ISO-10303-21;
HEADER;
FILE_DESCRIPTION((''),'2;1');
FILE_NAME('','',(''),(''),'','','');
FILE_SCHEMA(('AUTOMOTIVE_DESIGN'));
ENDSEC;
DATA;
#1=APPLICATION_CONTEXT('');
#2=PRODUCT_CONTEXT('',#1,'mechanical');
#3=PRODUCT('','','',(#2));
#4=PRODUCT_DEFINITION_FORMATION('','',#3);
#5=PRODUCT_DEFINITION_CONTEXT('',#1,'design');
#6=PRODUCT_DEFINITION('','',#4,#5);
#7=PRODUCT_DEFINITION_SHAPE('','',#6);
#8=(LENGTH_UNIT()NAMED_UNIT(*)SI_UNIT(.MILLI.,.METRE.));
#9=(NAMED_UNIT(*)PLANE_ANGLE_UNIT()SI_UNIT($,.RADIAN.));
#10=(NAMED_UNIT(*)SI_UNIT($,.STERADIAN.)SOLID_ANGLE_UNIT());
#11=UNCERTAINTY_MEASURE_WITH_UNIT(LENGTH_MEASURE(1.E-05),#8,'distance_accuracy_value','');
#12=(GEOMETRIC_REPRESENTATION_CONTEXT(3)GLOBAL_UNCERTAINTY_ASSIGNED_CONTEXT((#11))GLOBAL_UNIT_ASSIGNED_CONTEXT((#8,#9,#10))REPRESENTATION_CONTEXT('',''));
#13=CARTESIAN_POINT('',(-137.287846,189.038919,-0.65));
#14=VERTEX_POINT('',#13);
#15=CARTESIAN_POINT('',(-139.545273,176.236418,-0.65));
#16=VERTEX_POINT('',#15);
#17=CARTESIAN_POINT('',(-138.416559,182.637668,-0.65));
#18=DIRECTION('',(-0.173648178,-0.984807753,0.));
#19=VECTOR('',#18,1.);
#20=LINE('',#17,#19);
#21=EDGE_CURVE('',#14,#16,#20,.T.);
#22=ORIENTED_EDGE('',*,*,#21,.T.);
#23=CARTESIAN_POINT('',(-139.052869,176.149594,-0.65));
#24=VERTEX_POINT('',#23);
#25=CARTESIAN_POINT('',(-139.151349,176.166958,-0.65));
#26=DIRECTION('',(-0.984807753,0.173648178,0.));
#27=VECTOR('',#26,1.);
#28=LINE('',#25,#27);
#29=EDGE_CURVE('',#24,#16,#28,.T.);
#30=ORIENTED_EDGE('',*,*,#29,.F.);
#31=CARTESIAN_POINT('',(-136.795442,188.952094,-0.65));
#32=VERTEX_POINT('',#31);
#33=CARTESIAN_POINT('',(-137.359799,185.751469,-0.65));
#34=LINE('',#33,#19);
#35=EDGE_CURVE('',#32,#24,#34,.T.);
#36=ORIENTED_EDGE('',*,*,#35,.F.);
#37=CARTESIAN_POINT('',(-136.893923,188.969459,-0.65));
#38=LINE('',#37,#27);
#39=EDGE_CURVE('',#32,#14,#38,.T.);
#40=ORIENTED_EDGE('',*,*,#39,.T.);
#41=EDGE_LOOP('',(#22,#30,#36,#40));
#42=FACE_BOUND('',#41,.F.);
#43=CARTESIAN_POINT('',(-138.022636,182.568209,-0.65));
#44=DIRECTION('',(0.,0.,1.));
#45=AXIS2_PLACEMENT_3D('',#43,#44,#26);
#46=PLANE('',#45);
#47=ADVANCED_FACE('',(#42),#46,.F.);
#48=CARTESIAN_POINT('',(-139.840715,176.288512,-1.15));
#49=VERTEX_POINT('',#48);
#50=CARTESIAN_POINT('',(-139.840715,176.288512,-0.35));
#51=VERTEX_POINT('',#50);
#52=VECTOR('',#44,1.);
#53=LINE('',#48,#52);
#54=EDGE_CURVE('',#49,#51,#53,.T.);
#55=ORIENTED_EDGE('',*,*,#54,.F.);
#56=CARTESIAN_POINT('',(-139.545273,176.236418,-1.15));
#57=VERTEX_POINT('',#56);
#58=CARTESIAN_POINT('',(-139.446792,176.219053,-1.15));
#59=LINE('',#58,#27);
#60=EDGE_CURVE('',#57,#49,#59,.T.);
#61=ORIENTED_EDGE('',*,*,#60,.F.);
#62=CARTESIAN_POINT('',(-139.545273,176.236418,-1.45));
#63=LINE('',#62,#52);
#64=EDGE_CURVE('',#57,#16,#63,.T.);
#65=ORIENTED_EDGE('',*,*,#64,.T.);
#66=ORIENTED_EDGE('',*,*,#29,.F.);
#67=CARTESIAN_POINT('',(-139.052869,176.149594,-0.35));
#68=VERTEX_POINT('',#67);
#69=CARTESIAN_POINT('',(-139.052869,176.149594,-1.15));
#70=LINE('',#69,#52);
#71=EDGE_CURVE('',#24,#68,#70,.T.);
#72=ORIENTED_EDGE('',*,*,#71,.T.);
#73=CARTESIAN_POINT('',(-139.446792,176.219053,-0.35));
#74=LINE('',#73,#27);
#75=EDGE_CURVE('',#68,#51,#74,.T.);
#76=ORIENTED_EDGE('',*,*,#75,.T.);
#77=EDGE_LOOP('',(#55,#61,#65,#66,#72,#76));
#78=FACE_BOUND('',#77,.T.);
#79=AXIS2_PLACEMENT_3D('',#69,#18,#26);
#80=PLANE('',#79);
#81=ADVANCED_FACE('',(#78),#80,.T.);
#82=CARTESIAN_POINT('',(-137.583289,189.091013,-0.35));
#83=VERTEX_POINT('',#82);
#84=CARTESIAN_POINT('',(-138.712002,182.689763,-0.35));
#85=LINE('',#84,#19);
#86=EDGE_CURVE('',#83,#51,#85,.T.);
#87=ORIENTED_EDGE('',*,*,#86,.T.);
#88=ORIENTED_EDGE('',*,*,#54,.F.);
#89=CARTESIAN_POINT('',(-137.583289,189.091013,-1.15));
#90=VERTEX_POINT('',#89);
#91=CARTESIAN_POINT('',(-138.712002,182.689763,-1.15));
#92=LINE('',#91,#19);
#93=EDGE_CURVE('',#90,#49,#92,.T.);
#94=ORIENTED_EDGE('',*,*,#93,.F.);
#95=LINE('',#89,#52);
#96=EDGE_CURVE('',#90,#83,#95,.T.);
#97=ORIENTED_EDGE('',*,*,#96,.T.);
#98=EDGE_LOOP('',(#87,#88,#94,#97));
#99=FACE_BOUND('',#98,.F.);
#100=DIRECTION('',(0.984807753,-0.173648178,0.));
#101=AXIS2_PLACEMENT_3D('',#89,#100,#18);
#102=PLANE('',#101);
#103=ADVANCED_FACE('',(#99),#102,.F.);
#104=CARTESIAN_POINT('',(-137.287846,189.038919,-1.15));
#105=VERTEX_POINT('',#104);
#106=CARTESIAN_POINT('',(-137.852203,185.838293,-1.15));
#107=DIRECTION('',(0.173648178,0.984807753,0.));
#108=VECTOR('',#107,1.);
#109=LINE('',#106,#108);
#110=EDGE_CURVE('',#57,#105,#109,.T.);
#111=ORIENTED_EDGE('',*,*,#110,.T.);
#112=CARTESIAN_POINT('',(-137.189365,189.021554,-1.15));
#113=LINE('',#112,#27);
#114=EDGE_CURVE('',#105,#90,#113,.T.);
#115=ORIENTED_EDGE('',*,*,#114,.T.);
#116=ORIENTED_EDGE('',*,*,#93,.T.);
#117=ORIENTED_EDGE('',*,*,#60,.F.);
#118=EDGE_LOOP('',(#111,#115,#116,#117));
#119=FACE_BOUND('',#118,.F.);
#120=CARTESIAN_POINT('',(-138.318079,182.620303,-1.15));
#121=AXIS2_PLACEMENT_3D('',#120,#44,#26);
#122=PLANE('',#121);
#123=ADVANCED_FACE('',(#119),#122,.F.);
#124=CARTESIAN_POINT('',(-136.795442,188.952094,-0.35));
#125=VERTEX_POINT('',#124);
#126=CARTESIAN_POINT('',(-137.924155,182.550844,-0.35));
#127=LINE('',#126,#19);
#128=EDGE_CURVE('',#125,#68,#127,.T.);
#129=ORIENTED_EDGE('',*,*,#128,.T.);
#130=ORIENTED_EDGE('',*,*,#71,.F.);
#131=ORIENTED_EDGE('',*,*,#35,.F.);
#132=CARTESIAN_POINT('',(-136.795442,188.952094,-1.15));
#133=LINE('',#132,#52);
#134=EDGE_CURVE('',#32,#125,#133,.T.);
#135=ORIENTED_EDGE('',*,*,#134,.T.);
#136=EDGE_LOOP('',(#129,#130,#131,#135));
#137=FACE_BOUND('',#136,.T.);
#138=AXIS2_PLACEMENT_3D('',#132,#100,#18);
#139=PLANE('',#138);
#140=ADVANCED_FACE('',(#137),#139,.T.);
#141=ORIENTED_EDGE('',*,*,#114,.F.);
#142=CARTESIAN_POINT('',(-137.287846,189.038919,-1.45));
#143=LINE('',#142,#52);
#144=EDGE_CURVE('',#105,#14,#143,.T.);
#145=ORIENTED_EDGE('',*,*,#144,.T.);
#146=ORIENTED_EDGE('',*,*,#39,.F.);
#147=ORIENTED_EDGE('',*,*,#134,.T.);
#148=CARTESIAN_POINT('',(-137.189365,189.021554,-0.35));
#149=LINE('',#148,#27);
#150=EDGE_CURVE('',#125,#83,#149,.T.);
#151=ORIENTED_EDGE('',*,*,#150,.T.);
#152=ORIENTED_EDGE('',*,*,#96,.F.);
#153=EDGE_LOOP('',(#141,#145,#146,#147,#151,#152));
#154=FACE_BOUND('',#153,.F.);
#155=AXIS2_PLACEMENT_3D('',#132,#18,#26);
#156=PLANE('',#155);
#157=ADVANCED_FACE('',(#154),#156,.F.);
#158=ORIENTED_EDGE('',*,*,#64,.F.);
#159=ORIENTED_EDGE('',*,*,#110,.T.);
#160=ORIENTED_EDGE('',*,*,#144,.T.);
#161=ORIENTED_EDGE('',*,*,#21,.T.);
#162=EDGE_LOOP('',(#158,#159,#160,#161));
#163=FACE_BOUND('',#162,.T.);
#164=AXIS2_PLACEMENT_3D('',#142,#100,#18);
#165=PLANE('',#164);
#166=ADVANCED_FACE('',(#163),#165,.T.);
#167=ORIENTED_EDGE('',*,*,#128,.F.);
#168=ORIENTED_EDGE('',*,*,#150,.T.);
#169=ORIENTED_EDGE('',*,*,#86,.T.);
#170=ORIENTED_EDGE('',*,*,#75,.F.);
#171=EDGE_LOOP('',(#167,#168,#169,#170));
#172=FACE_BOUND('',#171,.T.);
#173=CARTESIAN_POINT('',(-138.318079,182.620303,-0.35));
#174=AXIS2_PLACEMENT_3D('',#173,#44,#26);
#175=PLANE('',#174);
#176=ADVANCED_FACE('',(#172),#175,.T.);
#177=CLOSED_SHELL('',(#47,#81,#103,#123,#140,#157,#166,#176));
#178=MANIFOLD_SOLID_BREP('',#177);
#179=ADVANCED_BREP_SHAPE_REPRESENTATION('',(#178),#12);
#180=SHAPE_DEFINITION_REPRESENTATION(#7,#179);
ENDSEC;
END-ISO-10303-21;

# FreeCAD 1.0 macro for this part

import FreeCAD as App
import Part
import Sketcher

V = App.Vector
Q = App.Units.Quantity

doc = App.newDocument("Part")
params = doc.addObject("Spreadsheet::Sheet", "Params")
for row, (alias, value) in enumerate([
    ("sketch1_height", "13 mm"),
    ("sketch1_width", "0.8 mm"),
    ("pad1_length", "0.8 mm"),
    ("sketch2_height", "13 mm"),
    ("sketch2_width", "0.8 mm"),
    ("pad2_length", "0.8 mm"),
], start=1):
    params.set(f"A{row}", alias)
    params.set(f"B{row}", "=" + value)
    params.setAlias(f"B{row}", alias)

body = doc.addObject("PartDesign::Body", "Body")

# Sketch on XY plane
sketch1 = doc.addObject("Sketcher::SketchObject", "Sketch")
body.addObject(sketch1)
sketch1.AttachmentSupport = (doc.XY_Plane, [""])
sketch1.MapMode = "FlatFace"
sketch1.addGeometry([
    Part.LineSegment(V(0, 13, 0), V(0, 0, 0)),
    Part.LineSegment(V(0, 0, 0), V(0.8, 0, 0)),
    Part.LineSegment(V(0.8, 0, 0), V(0.8, 13, 0)),
    Part.LineSegment(V(0.8, 13, 0), V(0, 13, 0)),
], False)
sketch1.addConstraint([
    Sketcher.Constraint("Coincident", 0, 2, 1, 1),
    Sketcher.Constraint("Coincident", 1, 2, 2, 1),
    Sketcher.Constraint("Coincident", 2, 2, 3, 1),
    Sketcher.Constraint("Coincident", 3, 2, 0, 1),
    Sketcher.Constraint("Vertical", 0),
    Sketcher.Constraint("Horizontal", 1),
    Sketcher.Constraint("Vertical", 2),
    Sketcher.Constraint("Horizontal", 3),
    Sketcher.Constraint("Coincident", 0, 2, -1, 1),
    Sketcher.Constraint("DistanceY", 0, 2, 0, 1, Q("13 mm")),
    Sketcher.Constraint("DistanceX", 1, 1, 1, 2, Q("0.8 mm")),
])
sketch1.setExpression("Constraints[9]", "Params.sketch1_height")
sketch1.setExpression("Constraints[10]", "Params.sketch1_width")
pad1 = doc.addObject("PartDesign::Pad", "Pad")
body.addObject(pad1)
pad1.Profile = sketch1
pad1.setExpression("Length", "Params.pad1_length")
body2 = doc.addObject("PartDesign::Body", "Body001")

# Sketch on XY plane
sketch2 = doc.addObject("Sketcher::SketchObject", "Sketch001")
body2.addObject(sketch2)
sketch2.AttachmentSupport = (doc.getObject("XY_Plane001"), [""])
sketch2.MapMode = "FlatFace"
sketch2.AttachmentOffset = App.Placement(V(0, 0, 0.3), App.Rotation())
sketch2.addGeometry([
    Part.LineSegment(V(0.3, 13, 0), V(0.3, 0, 0)),
    Part.LineSegment(V(0.3, 0, 0), V(1.1, 0, 0)),
    Part.LineSegment(V(1.1, 0, 0), V(1.1, 13, 0)),
    Part.LineSegment(V(1.1, 13, 0), V(0.3, 13, 0)),
], False)
sketch2.addConstraint([
    Sketcher.Constraint("Coincident", 0, 2, 1, 1),
    Sketcher.Constraint("Coincident", 1, 2, 2, 1),
    Sketcher.Constraint("Coincident", 2, 2, 3, 1),
    Sketcher.Constraint("Coincident", 3, 2, 0, 1),
    Sketcher.Constraint("Vertical", 0),
    Sketcher.Constraint("Horizontal", 1),
    Sketcher.Constraint("Vertical", 2),
    Sketcher.Constraint("Horizontal", 3),
    Sketcher.Constraint("PointOnObject", 0, 2, -1),
    Sketcher.Constraint("DistanceY", 0, 2, 0, 1, Q("13 mm")),
    Sketcher.Constraint("DistanceX", 1, 1, 1, 2, Q("0.8 mm")),
    Sketcher.Constraint("DistanceX", -1, 1, 0, 2, Q("0.3 mm")),
])
sketch2.setExpression("Constraints[9]", "Params.sketch2_height")
sketch2.setExpression("Constraints[10]", "Params.sketch2_width")
pad2 = doc.addObject("PartDesign::Pad", "Pad001")
body2.addObject(pad2)
pad2.Profile = sketch2
pad2.setExpression("Length", "Params.pad2_length")
doc.recompute()

boolean = doc.addObject("PartDesign::Boolean", "Boolean")
body2.addObject(boolean)
boolean.Type = "Cut"
boolean.addObjects([body])
body3 = doc.addObject("PartDesign::Body", "Body002")
doc.recompute()

body2.Placement = App.Placement(V(-136.5, 188.9, -1.45), App.Rotation(V(0, 0, 1), 170))
boolean2 = doc.addObject("PartDesign::Boolean", "Boolean001")
body3.addObject(boolean2)
boolean2.Type = "Fuse"
boolean2.addObjects([body2])

doc.recompute()
